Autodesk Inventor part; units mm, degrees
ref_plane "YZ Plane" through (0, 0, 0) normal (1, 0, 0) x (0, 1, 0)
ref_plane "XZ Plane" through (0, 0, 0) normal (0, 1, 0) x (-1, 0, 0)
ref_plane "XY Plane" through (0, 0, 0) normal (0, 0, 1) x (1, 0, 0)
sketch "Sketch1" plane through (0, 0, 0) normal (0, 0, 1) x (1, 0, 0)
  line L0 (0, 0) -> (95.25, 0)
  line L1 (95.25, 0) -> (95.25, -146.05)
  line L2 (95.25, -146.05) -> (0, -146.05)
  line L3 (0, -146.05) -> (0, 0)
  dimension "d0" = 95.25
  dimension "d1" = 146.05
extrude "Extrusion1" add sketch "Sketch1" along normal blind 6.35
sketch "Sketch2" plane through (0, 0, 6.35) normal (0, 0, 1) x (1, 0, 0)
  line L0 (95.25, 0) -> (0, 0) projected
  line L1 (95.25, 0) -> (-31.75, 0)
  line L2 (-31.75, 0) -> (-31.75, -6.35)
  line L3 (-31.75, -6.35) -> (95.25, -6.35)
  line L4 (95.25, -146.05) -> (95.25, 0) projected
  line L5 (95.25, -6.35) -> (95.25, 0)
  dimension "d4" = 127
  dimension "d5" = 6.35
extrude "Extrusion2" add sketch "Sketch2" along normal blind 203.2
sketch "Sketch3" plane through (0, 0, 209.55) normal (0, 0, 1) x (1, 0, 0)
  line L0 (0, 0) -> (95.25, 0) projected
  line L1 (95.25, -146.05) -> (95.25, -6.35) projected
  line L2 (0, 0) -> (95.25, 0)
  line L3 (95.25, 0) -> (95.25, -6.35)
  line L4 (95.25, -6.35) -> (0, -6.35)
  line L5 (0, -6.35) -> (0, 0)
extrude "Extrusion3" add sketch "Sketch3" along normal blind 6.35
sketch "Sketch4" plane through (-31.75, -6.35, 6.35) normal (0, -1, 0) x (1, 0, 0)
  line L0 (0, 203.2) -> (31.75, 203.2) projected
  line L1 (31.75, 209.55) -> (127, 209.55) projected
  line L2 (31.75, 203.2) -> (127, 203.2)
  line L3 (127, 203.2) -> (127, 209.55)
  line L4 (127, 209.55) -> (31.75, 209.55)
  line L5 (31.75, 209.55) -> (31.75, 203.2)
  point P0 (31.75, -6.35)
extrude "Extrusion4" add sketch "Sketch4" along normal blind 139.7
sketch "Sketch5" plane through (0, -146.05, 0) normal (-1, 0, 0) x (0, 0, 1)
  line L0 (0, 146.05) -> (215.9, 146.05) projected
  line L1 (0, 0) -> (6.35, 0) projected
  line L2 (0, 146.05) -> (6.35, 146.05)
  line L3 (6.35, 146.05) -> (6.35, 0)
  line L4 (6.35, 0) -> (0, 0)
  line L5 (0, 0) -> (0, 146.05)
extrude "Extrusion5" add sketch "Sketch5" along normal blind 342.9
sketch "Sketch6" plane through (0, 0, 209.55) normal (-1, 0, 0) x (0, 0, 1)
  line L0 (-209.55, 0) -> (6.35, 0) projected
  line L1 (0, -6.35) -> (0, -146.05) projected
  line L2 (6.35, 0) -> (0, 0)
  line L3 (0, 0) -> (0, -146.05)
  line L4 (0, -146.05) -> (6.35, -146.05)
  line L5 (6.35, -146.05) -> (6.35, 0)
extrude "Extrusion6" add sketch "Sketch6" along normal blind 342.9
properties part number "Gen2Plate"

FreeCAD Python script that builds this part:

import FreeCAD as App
import Part
import Sketcher

V = App.Vector
Q = App.Units.Quantity


def add_polygon(sketch, points):
    """Adds a closed chain of lines whose ends are joined by coincident constraints."""
    first, n = sketch.GeometryCount, len(points)
    for a, b in zip(points, points[1:] + points[:1]):
        sketch.addGeometry(Part.LineSegment(App.Vector(*a, 0), App.Vector(*b, 0)), False)
    for i in range(n):
        sketch.addConstraint(Sketcher.Constraint("Coincident", first + i, 2, first + (i + 1) % n, 1))

doc = App.newDocument("Part")
params = doc.addObject("Spreadsheet::Sheet", "Params")
for row, (alias, value) in enumerate([
    ("sketch1_width", "3.75 in"),
    ("sketch1_height", "5.75 in"),
    ("pad1_length", "0.25 in"),
    ("sketch2_width", "5 in"),
    ("sketch2_height", "0.25 in"),
    ("pad2_length", "8 in"),
    ("sketch3_width", "3.75 in"),
    ("sketch3_height", "0.25 in"),
    ("pad3_length", "0.25 in"),
    ("sketch4_width", "3.75 in"),
    ("sketch4_height", "0.25 in"),
    ("pad4_length", "5.5 in"),
    ("sketch5_width", "5.75 in"),
    ("sketch5_height", "0.25 in"),
    ("pad5_length", "13.5 in"),
    ("sketch6_width", "5.75 in"),
    ("sketch6_height", "0.25 in"),
    ("pad6_length", "13.5 in"),
], start=1):
    params.set(f"A{row}", alias)
    params.set(f"B{row}", "=" + value)
    params.setAlias(f"B{row}", alias)

body = doc.addObject("PartDesign::Body", "Body")

# Sketch on XY plane
sketch1 = doc.addObject("Sketcher::SketchObject", "Sketch")
body.addObject(sketch1)
sketch1.AttachmentSupport = (doc.XY_Plane, [""])
sketch1.MapMode = "FlatFace"
add_polygon(sketch1, [(95, 0), (0, 0), (0, -146), (95, -146)])  # lines 0-3
sketch1.addConstraint(Sketcher.Constraint("Horizontal", 0))
sketch1.addConstraint(Sketcher.Constraint("Vertical", 1))
sketch1.addConstraint(Sketcher.Constraint("Horizontal", 2))
sketch1.addConstraint(Sketcher.Constraint("Vertical", 3))
sketch1.addConstraint(Sketcher.Constraint("Coincident", 0, 2, -1, 1))
sketch1.addConstraint(Sketcher.Constraint("DistanceX", 0, 2, 0, 1, Q("3.75 in")))
sketch1.addConstraint(Sketcher.Constraint("DistanceY", 1, 2, 1, 1, Q("5.75 in")))
sketch1.setExpression("Constraints[9]", "Params.sketch1_width")
sketch1.setExpression("Constraints[10]", "Params.sketch1_height")
pad1 = doc.addObject("PartDesign::Pad", "Pad")
body.addObject(pad1)
pad1.Profile = sketch1
pad1.setExpression("Length", "Params.pad1_length")

# Sketch on XY plane
sketch2 = doc.addObject("Sketcher::SketchObject", "Sketch001")
body.addObject(sketch2)
sketch2.AttachmentSupport = (doc.XY_Plane, [""])
sketch2.MapMode = "FlatFace"
sketch2.AttachmentOffset = App.Placement(V(0, 0, 0.25 * 25.4), App.Rotation())
add_polygon(sketch2, [(95, -6), (95, 0), (-32, 0), (-32, -6)])  # lines 0-3
sketch2.addConstraint(Sketcher.Constraint("Vertical", 0))
sketch2.addConstraint(Sketcher.Constraint("Horizontal", 1))
sketch2.addConstraint(Sketcher.Constraint("Vertical", 2))
sketch2.addConstraint(Sketcher.Constraint("Horizontal", 3))
sketch2.addConstraint(Sketcher.Constraint("PointOnObject", 0, 2, -1))
sketch2.addConstraint(Sketcher.Constraint("DistanceX", 1, 2, 1, 1, Q("5 in")))
sketch2.addConstraint(Sketcher.Constraint("DistanceY", 0, 1, 0, 2, Q("0.25 in")))
sketch2.addConstraint(Sketcher.Constraint("DistanceX", -1, 1, 0, 2, Q("3.75 in")))
sketch2.setExpression("Constraints[9]", "Params.sketch2_width")
sketch2.setExpression("Constraints[10]", "Params.sketch2_height")
pad2 = doc.addObject("PartDesign::Pad", "Pad001")
body.addObject(pad2)
pad2.Profile = sketch2
pad2.setExpression("Length", "Params.pad2_length")

# Sketch on XY plane
sketch3 = doc.addObject("Sketcher::SketchObject", "Sketch002")
body.addObject(sketch3)
sketch3.AttachmentSupport = (doc.XY_Plane, [""])
sketch3.MapMode = "FlatFace"
sketch3.AttachmentOffset = App.Placement(V(0, 0, 8.25 * 25.4), App.Rotation())
add_polygon(sketch3, [(95, 0), (0, 0), (0, -6), (95, -6)])  # lines 0-3
sketch3.addConstraint(Sketcher.Constraint("Horizontal", 0))
sketch3.addConstraint(Sketcher.Constraint("Vertical", 1))
sketch3.addConstraint(Sketcher.Constraint("Horizontal", 2))
sketch3.addConstraint(Sketcher.Constraint("Vertical", 3))
sketch3.addConstraint(Sketcher.Constraint("Coincident", 0, 2, -1, 1))
sketch3.addConstraint(Sketcher.Constraint("DistanceX", 0, 2, 0, 1, Q("3.75 in")))
sketch3.addConstraint(Sketcher.Constraint("DistanceY", 1, 2, 1, 1, Q("0.25 in")))
sketch3.setExpression("Constraints[9]", "Params.sketch3_width")
sketch3.setExpression("Constraints[10]", "Params.sketch3_height")
pad3 = doc.addObject("PartDesign::Pad", "Pad002")
body.addObject(pad3)
pad3.Profile = sketch3
pad3.setExpression("Length", "Params.pad3_length")

# Sketch on XZ plane
sketch4 = doc.addObject("Sketcher::SketchObject", "Sketch003")
body.addObject(sketch4)
sketch4.AttachmentSupport = (doc.XZ_Plane, [""])
sketch4.MapMode = "FlatFace"
sketch4.AttachmentOffset = App.Placement(V(0, 0, 0.25 * 25.4), App.Rotation())
add_polygon(sketch4, [(95, 216), (0, 216), (0, 210), (95, 210)])  # lines 0-3
sketch4.addConstraint(Sketcher.Constraint("Horizontal", 0))
sketch4.addConstraint(Sketcher.Constraint("Vertical", 1))
sketch4.addConstraint(Sketcher.Constraint("Horizontal", 2))
sketch4.addConstraint(Sketcher.Constraint("Vertical", 3))
sketch4.addConstraint(Sketcher.Constraint("PointOnObject", 0, 2, -2))
sketch4.addConstraint(Sketcher.Constraint("DistanceX", 0, 2, 0, 1, Q("3.75 in")))
sketch4.addConstraint(Sketcher.Constraint("DistanceY", 1, 2, 1, 1, Q("0.25 in")))
sketch4.addConstraint(Sketcher.Constraint("DistanceY", -1, 1, 0, 2, Q("8.5 in")))
sketch4.setExpression("Constraints[9]", "Params.sketch4_width")
sketch4.setExpression("Constraints[10]", "Params.sketch4_height")
pad4 = doc.addObject("PartDesign::Pad", "Pad003")
body.addObject(pad4)
pad4.Profile = sketch4
pad4.setExpression("Length", "Params.pad4_length")

# Sketch on YZ plane
sketch5 = doc.addObject("Sketcher::SketchObject", "Sketch004")
body.addObject(sketch5)
sketch5.AttachmentSupport = (doc.YZ_Plane, [""])
sketch5.MapMode = "FlatFace"
add_polygon(sketch5, [(0, 6), (0, 0), (-146, 0), (-146, 6)])  # lines 0-3
sketch5.addConstraint(Sketcher.Constraint("Vertical", 0))
sketch5.addConstraint(Sketcher.Constraint("Horizontal", 1))
sketch5.addConstraint(Sketcher.Constraint("Vertical", 2))
sketch5.addConstraint(Sketcher.Constraint("Horizontal", 3))
sketch5.addConstraint(Sketcher.Constraint("Coincident", 0, 2, -1, 1))
sketch5.addConstraint(Sketcher.Constraint("DistanceX", 1, 2, 1, 1, Q("5.75 in")))
sketch5.addConstraint(Sketcher.Constraint("DistanceY", 0, 2, 0, 1, Q("0.25 in")))
sketch5.setExpression("Constraints[9]", "Params.sketch5_width")
sketch5.setExpression("Constraints[10]", "Params.sketch5_height")
pad5 = doc.addObject("PartDesign::Pad", "Pad004")
body.addObject(pad5)
pad5.Profile = sketch5
pad5.setExpression("Length", "Params.pad5_length")
pad5.Reversed = True

# Sketch on YZ plane
sketch6 = doc.addObject("Sketcher::SketchObject", "Sketch005")
body.addObject(sketch6)
sketch6.AttachmentSupport = (doc.YZ_Plane, [""])
sketch6.MapMode = "FlatFace"
add_polygon(sketch6, [(0, 216), (0, 210), (-146, 210), (-146, 216)])  # lines 0-3
sketch6.addConstraint(Sketcher.Constraint("Vertical", 0))
sketch6.addConstraint(Sketcher.Constraint("Horizontal", 1))
sketch6.addConstraint(Sketcher.Constraint("Vertical", 2))
sketch6.addConstraint(Sketcher.Constraint("Horizontal", 3))
sketch6.addConstraint(Sketcher.Constraint("PointOnObject", 0, 2, -2))
sketch6.addConstraint(Sketcher.Constraint("DistanceX", 1, 2, 1, 1, Q("5.75 in")))
sketch6.addConstraint(Sketcher.Constraint("DistanceY", 0, 2, 0, 1, Q("0.25 in")))
sketch6.addConstraint(Sketcher.Constraint("DistanceY", -1, 1, 2, 2, Q("8.5 in")))
sketch6.setExpression("Constraints[9]", "Params.sketch6_width")
sketch6.setExpression("Constraints[10]", "Params.sketch6_height")
pad6 = doc.addObject("PartDesign::Pad", "Pad005")
body.addObject(pad6)
pad6.Profile = sketch6
pad6.setExpression("Length", "Params.pad6_length")
pad6.Reversed = True

doc.recompute()
